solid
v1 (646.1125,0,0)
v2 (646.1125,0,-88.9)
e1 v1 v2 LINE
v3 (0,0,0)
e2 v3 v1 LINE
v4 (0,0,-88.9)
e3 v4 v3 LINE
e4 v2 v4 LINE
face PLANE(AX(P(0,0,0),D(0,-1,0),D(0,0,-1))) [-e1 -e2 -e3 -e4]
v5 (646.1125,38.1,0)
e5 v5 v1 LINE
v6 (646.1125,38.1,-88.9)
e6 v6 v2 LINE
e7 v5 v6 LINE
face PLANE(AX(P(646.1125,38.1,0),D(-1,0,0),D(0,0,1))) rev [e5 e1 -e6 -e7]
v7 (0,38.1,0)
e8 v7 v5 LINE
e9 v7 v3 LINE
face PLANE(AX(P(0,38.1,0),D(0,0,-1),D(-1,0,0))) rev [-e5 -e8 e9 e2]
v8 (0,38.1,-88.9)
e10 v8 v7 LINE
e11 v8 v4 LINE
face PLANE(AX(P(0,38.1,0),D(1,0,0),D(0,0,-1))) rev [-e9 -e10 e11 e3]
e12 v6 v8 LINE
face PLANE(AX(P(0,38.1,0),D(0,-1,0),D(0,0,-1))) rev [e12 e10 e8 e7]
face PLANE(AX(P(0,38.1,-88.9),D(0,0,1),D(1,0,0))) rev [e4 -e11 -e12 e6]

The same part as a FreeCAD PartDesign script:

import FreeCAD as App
import Part
import Sketcher
Q = App.Units.Quantity

doc = App.newDocument("Part")
body = doc.addObject("PartDesign::Body", "Body")

# Sketch on XZ plane
sketch1 = body.newObject("Sketcher::SketchObject", "Sketch")
sketch1.AttachmentSupport = (doc.getObject("XZ_Plane"), [""])
sketch1.MapMode = "FlatFace"
sketch1.addGeometry(Part.LineSegment(App.Vector(0, -89, 0), App.Vector(0, 0, 0)), False)
sketch1.addGeometry(Part.LineSegment(App.Vector(0, 0, 0), App.Vector(646, 0, 0)), False)
sketch1.addGeometry(Part.LineSegment(App.Vector(646, 0, 0), App.Vector(646, -89, 0)), False)
sketch1.addGeometry(Part.LineSegment(App.Vector(646, -89, 0), App.Vector(0, -89, 0)), False)
sketch1.addConstraint(Sketcher.Constraint("Coincident", 0, 2, 1, 1))
sketch1.addConstraint(Sketcher.Constraint("Coincident", 1, 2, 2, 1))
sketch1.addConstraint(Sketcher.Constraint("Coincident", 2, 2, 3, 1))
sketch1.addConstraint(Sketcher.Constraint("Coincident", 3, 2, 0, 1))
sketch1.addConstraint(Sketcher.Constraint("Vertical", 0))
sketch1.addConstraint(Sketcher.Constraint("Horizontal", 1))
sketch1.addConstraint(Sketcher.Constraint("Vertical", 2))
sketch1.addConstraint(Sketcher.Constraint("Horizontal", 3))
sketch1.addConstraint(Sketcher.Constraint("Coincident", 0, 2, -1, 1))
sketch1.addConstraint(Sketcher.Constraint("DistanceY", 0, 1, 0, 2, Q("3.5 in")))
sketch1.addConstraint(Sketcher.Constraint("DistanceX", 1, 1, 1, 2, Q("25.4375 in")))
pad1 = body.newObject("PartDesign::Pad", "Pad")
pad1.Profile = sketch1
pad1.Length = Q("1.5 in")
pad1.Reversed = True

doc.recompute()
